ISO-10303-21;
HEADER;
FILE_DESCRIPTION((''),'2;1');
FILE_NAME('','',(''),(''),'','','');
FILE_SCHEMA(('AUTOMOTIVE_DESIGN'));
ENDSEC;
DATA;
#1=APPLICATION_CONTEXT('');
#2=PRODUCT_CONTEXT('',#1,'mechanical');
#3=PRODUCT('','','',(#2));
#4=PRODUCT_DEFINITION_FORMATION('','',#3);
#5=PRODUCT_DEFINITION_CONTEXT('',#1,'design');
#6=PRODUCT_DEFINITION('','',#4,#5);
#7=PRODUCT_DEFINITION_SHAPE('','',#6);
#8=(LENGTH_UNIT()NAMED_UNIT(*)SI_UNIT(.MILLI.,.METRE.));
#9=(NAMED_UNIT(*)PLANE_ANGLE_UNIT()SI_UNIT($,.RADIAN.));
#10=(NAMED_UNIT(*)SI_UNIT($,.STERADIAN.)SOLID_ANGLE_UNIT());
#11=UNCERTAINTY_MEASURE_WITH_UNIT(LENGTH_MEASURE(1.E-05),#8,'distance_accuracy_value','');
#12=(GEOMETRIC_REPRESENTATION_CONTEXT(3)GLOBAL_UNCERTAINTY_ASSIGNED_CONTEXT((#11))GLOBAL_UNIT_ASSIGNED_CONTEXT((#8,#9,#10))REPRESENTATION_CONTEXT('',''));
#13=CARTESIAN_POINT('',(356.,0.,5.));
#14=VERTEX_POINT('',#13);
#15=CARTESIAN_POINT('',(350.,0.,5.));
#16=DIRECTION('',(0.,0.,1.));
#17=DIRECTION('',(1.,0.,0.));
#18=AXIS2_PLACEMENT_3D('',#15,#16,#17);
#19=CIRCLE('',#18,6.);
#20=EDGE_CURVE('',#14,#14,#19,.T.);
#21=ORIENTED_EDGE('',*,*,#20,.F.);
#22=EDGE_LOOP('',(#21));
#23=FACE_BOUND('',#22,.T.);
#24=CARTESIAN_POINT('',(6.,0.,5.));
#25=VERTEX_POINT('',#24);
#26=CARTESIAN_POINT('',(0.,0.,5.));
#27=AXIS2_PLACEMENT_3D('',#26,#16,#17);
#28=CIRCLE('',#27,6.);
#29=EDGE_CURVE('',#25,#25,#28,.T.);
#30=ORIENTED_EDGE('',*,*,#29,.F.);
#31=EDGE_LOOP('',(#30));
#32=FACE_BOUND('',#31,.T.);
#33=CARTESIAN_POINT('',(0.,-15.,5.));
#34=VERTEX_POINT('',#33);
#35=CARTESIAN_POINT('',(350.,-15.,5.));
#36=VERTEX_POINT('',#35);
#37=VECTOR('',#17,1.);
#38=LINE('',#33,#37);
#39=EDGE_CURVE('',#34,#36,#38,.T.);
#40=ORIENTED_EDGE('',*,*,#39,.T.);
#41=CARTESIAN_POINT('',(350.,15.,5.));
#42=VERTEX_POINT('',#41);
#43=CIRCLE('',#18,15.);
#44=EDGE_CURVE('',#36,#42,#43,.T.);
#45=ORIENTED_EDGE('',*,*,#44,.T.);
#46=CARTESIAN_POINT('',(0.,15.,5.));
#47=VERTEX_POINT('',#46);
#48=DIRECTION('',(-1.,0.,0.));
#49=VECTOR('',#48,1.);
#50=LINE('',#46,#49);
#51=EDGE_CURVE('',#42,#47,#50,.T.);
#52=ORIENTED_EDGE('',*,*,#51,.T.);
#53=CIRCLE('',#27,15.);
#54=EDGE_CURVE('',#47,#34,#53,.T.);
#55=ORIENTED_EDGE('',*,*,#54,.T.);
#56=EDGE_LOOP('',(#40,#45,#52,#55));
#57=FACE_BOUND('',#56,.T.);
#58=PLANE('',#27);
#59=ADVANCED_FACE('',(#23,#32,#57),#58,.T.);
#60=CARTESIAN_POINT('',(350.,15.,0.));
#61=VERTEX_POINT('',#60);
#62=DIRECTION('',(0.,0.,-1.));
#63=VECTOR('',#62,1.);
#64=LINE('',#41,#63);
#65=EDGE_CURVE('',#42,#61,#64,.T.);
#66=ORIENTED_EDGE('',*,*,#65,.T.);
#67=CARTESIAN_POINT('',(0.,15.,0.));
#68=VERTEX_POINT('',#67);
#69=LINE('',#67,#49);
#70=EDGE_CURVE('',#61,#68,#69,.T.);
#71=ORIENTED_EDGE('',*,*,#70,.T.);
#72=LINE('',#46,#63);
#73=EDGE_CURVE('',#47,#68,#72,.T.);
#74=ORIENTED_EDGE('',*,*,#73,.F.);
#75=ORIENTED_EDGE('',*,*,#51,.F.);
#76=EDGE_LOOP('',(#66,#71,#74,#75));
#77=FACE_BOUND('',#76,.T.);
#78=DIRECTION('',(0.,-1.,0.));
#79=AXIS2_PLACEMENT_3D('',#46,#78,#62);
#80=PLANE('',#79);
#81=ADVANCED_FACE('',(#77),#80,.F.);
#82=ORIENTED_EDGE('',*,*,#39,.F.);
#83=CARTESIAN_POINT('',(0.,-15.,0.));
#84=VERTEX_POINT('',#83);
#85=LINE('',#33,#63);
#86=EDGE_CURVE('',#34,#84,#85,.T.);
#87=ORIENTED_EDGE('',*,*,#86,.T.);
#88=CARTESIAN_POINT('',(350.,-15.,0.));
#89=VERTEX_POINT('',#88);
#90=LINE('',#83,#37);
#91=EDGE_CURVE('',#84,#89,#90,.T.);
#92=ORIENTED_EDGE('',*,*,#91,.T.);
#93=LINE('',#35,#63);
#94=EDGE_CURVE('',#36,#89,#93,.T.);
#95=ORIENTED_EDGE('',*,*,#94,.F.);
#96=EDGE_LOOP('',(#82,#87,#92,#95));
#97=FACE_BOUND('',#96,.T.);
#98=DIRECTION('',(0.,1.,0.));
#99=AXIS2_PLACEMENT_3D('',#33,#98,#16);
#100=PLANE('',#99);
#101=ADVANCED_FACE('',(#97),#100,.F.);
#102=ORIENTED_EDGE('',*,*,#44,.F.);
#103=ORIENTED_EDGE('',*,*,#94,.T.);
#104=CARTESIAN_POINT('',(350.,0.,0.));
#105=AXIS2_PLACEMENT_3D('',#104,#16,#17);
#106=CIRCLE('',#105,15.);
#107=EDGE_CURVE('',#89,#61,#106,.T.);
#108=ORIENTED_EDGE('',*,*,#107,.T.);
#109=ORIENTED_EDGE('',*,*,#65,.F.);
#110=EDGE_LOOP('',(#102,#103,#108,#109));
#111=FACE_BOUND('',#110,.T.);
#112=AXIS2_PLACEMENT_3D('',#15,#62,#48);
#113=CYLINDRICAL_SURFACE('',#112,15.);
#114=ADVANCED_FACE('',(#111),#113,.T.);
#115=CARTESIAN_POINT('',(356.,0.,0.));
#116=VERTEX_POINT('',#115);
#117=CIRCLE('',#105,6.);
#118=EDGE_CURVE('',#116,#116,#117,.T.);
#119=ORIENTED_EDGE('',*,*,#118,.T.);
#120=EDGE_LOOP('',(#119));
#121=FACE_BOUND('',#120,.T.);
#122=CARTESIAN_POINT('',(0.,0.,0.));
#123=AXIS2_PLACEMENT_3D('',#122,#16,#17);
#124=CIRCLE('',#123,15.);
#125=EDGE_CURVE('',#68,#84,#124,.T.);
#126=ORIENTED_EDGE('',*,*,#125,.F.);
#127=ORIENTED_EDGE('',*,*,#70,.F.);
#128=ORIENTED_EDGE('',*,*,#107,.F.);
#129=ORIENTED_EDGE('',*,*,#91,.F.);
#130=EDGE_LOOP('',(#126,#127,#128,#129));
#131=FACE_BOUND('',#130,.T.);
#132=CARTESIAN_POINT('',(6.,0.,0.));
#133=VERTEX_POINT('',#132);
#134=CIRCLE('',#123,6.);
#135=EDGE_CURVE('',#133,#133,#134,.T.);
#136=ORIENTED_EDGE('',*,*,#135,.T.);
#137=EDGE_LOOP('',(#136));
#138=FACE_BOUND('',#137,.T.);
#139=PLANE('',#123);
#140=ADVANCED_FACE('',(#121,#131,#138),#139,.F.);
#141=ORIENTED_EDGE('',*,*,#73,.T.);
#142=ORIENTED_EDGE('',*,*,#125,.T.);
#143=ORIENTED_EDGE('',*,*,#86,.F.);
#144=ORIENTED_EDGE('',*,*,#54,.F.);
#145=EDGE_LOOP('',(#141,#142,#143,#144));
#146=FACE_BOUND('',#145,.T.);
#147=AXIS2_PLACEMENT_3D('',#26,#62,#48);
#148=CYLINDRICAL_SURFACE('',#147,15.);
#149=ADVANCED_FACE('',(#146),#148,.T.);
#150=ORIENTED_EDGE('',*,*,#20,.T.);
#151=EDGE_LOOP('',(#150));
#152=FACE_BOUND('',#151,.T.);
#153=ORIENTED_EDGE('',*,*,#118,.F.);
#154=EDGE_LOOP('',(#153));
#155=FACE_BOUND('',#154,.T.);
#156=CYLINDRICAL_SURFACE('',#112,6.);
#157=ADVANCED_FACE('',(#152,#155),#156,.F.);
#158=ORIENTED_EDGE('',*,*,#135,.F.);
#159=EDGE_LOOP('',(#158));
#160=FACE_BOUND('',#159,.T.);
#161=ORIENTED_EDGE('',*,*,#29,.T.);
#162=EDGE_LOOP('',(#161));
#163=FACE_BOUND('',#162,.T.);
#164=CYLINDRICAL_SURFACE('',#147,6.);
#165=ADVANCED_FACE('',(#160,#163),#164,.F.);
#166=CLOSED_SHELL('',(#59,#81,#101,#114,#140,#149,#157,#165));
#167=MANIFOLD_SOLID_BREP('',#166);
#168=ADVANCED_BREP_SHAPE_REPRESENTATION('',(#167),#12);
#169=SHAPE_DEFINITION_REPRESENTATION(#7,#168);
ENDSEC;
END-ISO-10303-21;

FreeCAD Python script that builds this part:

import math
import FreeCAD as App
import Part
import Sketcher
from FreeCAD import Vector

doc = App.newDocument("Part")
body = doc.addObject("PartDesign::Body", "Body")

# Sketch on XY plane
sketch1 = doc.addObject("Sketcher::SketchObject", "Sketch")
body.addObject(sketch1)
sketch1.AttachmentSupport = (doc.XY_Plane, [""])
sketch1.MapMode = "FlatFace"
sketch1.addGeometry([
    Part.LineSegment(Vector(350, 15, 0), Vector(0, 15, 0)),  # 0
    Part.ArcOfCircle(Part.Circle(Vector(0, 0, 0), Vector(0, 0, 1), 15), math.radians(90), math.radians(270)),  # 1
    Part.LineSegment(Vector(0, -15, 0), Vector(350, -15, 0)),  # 2
    Part.ArcOfCircle(Part.Circle(Vector(350, 0, 0), Vector(0, 0, 1), 15), math.radians(-90), math.radians(90)),  # 3
    Part.Circle(Vector(350, 0, 0), Vector(0, 0, 1), 6),  # 4
    Part.Circle(Vector(0, 0, 0), Vector(0, 0, 1), 6),  # 5
], False)
sketch1.addConstraint([
    Sketcher.Constraint("Tangent", 0, 2, 1, 1),
    Sketcher.Constraint("Tangent", 1, 2, 2, 1),
    Sketcher.Constraint("Tangent", 2, 2, 3, 1),
    Sketcher.Constraint("Tangent", 3, 2, 0, 1),
    Sketcher.Constraint("Horizontal", 0),
    Sketcher.Constraint("Horizontal", 2),
    Sketcher.Constraint("Coincident", 1, 3, -1, 1),
    Sketcher.Constraint("Coincident", 5, 3, -1, 1),
    Sketcher.Constraint("Coincident", 4, 3, 3, 3),
    Sketcher.Constraint("Equal", 4, 5),
    Sketcher.Constraint("Diameter", 4, 12.0),
    Sketcher.Constraint("Radius", 1, 15.0),
    Sketcher.Constraint("DistanceX", 0, 2, 0, 1, 350.0),
])
pad1 = doc.addObject("PartDesign::Pad", "Pad")
body.addObject(pad1)
pad1.Profile = sketch1
pad1.Length = 5

doc.recompute()
